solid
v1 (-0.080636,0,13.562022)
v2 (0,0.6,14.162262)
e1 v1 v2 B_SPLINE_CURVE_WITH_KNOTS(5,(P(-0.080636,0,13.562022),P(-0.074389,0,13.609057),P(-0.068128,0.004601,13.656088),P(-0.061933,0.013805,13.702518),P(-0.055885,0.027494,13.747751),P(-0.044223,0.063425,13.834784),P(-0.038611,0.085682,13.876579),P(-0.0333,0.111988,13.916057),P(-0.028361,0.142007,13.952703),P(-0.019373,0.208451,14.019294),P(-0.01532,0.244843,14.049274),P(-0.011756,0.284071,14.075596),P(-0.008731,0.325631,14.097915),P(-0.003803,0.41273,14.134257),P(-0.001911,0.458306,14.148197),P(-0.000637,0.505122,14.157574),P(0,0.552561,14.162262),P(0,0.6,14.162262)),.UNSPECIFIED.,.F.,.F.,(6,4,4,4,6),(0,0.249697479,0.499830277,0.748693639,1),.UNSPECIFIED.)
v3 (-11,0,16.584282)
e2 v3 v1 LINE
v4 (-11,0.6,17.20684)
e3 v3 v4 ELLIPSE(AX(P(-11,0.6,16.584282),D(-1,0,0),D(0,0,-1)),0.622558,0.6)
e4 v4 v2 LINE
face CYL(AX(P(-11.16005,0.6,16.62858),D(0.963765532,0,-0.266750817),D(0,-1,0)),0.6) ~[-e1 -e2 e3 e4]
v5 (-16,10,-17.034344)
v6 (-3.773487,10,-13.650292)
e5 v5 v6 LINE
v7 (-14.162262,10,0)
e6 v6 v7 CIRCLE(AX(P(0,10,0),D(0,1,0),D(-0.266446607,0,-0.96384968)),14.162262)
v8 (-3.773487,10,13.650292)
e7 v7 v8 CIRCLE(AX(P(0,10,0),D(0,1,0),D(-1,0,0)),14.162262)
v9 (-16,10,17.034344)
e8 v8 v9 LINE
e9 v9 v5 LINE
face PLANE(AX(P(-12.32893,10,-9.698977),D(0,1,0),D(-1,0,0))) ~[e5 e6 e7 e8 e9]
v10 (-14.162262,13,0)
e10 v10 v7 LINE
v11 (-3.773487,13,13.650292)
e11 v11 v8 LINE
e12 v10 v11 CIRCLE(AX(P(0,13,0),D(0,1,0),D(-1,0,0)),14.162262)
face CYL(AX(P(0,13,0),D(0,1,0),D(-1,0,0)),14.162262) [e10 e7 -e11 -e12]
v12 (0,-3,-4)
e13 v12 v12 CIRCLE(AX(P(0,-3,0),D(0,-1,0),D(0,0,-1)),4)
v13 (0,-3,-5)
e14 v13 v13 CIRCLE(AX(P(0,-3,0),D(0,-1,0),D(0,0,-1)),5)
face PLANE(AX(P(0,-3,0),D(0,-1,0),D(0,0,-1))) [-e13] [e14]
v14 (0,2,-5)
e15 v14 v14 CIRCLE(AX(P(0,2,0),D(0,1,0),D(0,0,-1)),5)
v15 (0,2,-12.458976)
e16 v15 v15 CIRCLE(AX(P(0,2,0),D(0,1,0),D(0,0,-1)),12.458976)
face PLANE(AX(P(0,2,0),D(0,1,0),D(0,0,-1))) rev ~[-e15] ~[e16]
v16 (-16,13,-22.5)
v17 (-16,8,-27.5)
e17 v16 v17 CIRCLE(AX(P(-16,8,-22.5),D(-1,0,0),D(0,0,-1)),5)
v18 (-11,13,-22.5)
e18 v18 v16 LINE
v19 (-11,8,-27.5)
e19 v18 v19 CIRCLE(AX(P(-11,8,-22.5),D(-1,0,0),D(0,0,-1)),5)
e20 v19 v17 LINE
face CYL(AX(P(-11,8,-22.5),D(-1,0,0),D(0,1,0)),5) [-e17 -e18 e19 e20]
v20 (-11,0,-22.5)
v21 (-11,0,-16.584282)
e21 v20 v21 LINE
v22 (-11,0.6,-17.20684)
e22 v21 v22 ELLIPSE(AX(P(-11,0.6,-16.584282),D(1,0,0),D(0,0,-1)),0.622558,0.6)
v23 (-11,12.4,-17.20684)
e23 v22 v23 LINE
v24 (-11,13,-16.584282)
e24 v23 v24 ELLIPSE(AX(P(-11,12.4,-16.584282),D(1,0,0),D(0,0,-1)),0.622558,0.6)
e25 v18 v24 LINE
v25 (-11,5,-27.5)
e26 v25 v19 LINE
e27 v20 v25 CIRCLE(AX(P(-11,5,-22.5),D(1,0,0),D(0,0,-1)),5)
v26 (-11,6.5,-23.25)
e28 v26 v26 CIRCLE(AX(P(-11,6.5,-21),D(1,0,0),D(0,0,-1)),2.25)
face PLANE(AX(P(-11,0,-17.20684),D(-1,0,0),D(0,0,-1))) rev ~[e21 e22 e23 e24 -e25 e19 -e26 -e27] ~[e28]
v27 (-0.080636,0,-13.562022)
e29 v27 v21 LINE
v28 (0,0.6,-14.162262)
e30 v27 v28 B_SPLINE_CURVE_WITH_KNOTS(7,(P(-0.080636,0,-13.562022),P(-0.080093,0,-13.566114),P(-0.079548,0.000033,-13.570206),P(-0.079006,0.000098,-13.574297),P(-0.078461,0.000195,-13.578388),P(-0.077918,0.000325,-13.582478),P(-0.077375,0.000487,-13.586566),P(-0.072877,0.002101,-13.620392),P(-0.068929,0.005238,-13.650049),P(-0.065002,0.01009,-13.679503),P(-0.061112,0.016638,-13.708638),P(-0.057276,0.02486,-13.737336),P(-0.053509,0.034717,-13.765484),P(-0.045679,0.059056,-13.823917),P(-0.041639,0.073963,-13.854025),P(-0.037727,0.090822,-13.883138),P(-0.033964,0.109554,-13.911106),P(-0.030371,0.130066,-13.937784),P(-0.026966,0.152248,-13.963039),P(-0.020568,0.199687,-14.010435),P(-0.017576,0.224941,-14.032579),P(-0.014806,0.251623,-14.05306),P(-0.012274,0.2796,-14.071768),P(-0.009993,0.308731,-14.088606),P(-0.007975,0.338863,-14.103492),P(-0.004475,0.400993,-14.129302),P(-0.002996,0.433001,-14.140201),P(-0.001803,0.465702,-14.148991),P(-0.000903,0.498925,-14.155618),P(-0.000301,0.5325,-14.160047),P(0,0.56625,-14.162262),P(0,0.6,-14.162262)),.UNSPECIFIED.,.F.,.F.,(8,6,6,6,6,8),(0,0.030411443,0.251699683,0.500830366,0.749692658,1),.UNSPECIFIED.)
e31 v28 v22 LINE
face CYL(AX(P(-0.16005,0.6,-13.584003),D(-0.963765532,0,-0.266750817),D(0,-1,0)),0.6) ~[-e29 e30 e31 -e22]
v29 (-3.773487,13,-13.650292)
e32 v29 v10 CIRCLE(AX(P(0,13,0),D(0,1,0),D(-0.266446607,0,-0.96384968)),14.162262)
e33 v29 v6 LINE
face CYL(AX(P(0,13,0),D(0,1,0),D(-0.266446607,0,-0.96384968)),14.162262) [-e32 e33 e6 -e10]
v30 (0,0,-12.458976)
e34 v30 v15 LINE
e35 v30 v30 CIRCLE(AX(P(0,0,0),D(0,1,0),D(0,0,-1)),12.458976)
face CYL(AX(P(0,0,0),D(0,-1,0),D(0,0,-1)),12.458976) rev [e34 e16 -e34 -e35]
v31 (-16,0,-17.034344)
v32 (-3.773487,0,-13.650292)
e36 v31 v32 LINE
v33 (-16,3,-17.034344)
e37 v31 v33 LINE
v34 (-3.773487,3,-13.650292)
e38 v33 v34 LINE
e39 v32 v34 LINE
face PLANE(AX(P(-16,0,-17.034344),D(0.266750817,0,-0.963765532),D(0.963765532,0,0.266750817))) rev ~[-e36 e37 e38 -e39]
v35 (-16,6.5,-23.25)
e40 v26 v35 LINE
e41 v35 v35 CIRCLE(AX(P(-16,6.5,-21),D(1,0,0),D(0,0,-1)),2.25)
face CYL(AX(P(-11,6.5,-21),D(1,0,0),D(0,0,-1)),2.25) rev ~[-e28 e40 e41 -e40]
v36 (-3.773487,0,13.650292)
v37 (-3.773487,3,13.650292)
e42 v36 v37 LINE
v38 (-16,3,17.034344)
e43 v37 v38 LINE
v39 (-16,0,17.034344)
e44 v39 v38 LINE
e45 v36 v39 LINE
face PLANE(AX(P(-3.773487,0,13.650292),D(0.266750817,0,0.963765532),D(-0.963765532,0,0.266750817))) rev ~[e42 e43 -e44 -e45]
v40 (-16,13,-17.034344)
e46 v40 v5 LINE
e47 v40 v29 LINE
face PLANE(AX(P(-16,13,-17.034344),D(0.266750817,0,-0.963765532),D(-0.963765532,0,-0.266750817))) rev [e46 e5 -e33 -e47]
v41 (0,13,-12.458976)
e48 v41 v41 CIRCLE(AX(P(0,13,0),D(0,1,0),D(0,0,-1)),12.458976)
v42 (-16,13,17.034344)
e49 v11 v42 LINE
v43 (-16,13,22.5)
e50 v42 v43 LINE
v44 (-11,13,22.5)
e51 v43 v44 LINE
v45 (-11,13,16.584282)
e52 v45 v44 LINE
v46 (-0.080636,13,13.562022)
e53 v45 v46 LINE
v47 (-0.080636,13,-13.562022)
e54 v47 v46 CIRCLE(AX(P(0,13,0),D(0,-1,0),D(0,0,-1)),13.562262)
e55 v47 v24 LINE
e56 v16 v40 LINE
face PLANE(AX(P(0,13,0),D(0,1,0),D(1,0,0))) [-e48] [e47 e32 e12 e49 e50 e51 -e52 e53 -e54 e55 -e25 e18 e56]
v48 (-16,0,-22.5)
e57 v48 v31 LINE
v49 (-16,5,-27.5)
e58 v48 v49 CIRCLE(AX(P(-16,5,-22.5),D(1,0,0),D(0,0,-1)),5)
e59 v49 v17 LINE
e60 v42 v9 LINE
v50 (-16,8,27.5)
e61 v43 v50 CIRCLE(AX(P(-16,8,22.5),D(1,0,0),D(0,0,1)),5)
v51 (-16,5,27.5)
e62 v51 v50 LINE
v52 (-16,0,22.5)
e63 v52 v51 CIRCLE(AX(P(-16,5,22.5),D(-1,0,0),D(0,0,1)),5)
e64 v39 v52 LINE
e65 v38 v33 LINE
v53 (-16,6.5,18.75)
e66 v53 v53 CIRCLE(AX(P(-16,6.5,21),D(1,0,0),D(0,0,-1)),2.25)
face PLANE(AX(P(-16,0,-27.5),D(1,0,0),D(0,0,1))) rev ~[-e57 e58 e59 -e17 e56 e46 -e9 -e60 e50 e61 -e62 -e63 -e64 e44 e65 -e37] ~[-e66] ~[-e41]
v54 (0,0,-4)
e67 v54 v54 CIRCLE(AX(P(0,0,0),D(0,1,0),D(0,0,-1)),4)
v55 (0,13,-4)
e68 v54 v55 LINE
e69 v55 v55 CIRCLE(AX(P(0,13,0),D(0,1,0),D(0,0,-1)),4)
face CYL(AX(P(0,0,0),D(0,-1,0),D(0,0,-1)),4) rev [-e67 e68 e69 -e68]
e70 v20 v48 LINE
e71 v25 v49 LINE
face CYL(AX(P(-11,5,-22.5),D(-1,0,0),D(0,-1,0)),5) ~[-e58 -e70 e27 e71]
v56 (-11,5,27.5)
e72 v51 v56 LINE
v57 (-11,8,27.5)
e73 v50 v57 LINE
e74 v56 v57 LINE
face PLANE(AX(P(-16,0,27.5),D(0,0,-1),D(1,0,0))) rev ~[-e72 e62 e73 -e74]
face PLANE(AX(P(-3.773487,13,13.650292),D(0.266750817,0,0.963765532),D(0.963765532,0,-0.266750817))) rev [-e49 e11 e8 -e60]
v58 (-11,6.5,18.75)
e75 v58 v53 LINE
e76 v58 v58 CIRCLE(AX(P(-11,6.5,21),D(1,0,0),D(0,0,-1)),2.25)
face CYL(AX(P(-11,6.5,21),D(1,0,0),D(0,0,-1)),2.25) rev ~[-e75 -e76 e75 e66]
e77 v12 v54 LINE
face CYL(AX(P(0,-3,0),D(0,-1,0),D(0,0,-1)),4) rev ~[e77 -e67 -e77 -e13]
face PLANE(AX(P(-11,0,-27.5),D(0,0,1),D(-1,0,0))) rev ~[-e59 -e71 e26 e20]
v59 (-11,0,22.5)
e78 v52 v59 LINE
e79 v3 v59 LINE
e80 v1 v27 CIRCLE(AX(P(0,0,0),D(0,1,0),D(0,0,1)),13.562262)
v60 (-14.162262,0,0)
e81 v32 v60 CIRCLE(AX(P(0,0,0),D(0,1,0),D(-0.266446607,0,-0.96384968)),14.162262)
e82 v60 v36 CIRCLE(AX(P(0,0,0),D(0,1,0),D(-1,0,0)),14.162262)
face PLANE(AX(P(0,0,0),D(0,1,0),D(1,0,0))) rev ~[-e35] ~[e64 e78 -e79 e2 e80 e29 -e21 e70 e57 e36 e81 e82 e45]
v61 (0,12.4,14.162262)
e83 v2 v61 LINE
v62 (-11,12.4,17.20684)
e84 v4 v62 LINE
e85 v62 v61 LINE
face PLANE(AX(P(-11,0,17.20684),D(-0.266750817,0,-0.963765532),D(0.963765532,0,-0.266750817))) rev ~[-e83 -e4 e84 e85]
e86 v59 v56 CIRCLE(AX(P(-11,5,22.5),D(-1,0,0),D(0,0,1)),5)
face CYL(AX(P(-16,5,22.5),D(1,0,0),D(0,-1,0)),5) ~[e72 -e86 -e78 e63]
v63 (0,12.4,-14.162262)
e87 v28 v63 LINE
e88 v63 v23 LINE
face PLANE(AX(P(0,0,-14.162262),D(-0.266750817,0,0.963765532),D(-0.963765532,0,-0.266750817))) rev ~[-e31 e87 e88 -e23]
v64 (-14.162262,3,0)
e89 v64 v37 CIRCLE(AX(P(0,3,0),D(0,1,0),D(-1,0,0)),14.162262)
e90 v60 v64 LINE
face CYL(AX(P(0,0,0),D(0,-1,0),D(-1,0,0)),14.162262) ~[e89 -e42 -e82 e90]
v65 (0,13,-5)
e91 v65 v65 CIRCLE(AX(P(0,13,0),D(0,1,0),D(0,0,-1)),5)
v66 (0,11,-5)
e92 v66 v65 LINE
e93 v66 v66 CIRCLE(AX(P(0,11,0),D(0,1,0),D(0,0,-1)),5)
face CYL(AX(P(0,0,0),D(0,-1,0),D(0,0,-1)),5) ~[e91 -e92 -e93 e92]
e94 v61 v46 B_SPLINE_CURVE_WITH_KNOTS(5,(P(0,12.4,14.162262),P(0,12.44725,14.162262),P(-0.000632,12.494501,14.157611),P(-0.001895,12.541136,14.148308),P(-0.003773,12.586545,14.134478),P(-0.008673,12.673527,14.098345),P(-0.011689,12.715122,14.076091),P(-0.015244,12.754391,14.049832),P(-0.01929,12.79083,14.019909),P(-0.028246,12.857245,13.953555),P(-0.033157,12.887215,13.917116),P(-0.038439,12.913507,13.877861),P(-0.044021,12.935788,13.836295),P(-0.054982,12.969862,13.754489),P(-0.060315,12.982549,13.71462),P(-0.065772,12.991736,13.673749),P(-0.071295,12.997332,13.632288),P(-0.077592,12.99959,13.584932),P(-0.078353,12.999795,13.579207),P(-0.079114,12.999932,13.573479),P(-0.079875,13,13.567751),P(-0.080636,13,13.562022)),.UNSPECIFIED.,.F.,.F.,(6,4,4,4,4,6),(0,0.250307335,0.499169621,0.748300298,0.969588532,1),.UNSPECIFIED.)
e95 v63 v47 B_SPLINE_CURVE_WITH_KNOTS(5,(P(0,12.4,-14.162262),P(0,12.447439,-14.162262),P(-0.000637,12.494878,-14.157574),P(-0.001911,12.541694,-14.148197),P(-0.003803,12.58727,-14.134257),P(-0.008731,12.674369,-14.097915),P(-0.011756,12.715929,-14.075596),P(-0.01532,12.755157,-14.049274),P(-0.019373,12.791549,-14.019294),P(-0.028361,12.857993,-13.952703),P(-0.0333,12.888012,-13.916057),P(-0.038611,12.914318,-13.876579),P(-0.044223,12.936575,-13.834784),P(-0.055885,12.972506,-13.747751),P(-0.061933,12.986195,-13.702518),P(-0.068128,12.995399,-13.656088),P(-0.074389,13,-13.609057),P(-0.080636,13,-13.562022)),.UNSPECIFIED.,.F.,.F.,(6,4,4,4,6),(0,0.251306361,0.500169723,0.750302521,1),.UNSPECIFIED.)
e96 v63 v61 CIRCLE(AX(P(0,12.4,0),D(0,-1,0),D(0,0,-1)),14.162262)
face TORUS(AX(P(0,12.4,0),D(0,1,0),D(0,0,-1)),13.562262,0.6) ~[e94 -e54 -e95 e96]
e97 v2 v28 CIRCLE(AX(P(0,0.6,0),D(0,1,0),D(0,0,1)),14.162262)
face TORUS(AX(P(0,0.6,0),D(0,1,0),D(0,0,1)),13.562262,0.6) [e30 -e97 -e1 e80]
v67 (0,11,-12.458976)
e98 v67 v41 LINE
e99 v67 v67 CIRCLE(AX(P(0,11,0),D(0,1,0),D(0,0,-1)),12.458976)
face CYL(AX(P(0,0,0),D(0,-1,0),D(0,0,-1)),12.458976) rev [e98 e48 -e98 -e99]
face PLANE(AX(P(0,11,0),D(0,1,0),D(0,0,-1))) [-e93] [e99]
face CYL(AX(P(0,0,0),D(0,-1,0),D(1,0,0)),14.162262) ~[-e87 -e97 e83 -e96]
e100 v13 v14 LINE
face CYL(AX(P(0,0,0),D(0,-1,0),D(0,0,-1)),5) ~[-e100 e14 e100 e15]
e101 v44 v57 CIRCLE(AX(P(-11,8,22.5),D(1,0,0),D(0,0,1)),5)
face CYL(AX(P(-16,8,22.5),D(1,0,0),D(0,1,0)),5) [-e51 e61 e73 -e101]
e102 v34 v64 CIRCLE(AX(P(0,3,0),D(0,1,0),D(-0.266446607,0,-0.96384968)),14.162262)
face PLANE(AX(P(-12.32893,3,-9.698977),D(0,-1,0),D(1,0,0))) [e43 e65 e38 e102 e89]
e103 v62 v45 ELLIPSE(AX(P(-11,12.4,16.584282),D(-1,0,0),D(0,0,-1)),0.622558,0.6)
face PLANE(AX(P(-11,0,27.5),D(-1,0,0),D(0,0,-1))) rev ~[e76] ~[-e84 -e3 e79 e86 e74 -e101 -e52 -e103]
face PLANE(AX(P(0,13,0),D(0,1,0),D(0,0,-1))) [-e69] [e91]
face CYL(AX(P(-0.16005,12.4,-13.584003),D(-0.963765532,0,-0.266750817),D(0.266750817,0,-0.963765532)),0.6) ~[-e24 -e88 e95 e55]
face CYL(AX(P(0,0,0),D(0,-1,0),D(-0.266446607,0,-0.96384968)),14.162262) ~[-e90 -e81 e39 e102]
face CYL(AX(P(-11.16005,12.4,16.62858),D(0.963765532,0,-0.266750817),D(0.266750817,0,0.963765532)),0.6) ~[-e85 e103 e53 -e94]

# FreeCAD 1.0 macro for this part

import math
import FreeCAD as App
import Part
import Sketcher

V = App.Vector
Q = App.Units.Quantity


def edges_at(feature, points):
    """Names of the edges that pass closest to the given points."""
    edges = feature.Shape.Edges
    near = lambda p: min(range(len(edges)), key=lambda i: edges[i].distToShape(Part.Vertex(*p))[0])
    return sorted({f"Edge{near(p) + 1}" for p in points})

doc = App.newDocument("Part")
body = doc.addObject("PartDesign::Body", "Body")
body.AllowCompound = True

# Sketch on XZ plane
sketch1 = body.newObject("Sketcher::SketchObject", "Sketch")
sketch1.AttachmentSupport = (doc.getObject("XZ_Plane"), [""])
sketch1.MapMode = "FlatFace"
sketch1.addGeometry([
    Part.LineSegment(V(-11, -27.5, 0), V(-16, -27.5, 0)),  # 0
    Part.LineSegment(V(-16, -27.5, 0), V(-16, 27.5, 0)),  # 1
    Part.LineSegment(V(-16, 27.5, 0), V(-11, 27.5, 0)),  # 2
    Part.LineSegment(V(-11, 27.5, 0), V(-11, 17.2, 0)),  # 3
    Part.LineSegment(V(-11, 17.2, 0), V(0, 14.2, 0)),  # 4
    Part.ArcOfCircle(Part.Circle(V(0, 0, 0), V(0, 0, 1), 14.2), math.radians(-90), math.radians(90)),  # 5
    Part.LineSegment(V(0, -14.2, 0), V(-11, -17.2, 0)),  # 6
    Part.LineSegment(V(-11, -17.2, 0), V(-11, -27.5, 0)),  # 7
    Part.Circle(V(0, 0, 0), V(0, 0, 1), 12.5),  # 8
    Part.Circle(V(0, 0, 0), V(0, 0, 1), 5),  # 9
    Part.Circle(V(0, 0, 0), V(0, 0, 1), 4),  # 10
], False)
sketch1.addConstraint([
    Sketcher.Constraint("Coincident", 0, 2, 1, 1),
    Sketcher.Constraint("Coincident", 1, 2, 2, 1),
    Sketcher.Constraint("Coincident", 2, 2, 3, 1),
    Sketcher.Constraint("Coincident", 3, 2, 4, 1),
    Sketcher.Constraint("Coincident", 4, 2, 5, 2),
    Sketcher.Constraint("Coincident", 5, 1, 6, 1),
    Sketcher.Constraint("Coincident", 6, 2, 7, 1),
    Sketcher.Constraint("Coincident", 7, 2, 0, 1),
    Sketcher.Constraint("Horizontal", 0),
    Sketcher.Constraint("Vertical", 1),
    Sketcher.Constraint("Horizontal", 2),
    Sketcher.Constraint("Vertical", 3),
    Sketcher.Constraint("Vertical", 7),
    Sketcher.Constraint("Coincident", 5, 3, -1, 1),
    Sketcher.Constraint("Coincident", 8, 3, -1, 1),
    Sketcher.Constraint("Coincident", 9, 3, -1, 1),
    Sketcher.Constraint("Coincident", 10, 3, -1, 1),
    Sketcher.Constraint("Symmetric", 3, 2, 6, 2, -1),
    Sketcher.Constraint("PointOnObject", 4, 2, -2),
    Sketcher.Constraint("PointOnObject", 5, 1, -2),
    Sketcher.Constraint("Equal", 3, 7),
    Sketcher.Constraint("Diameter", 9, Q("10 mm")),
    Sketcher.Constraint("Diameter", 10, Q("8 mm")),
    Sketcher.Constraint("DistanceX", 0, 2, 0, 1, Q("5 mm")),
    Sketcher.Constraint("DistanceY", 1, 1, 1, 2, Q("55 mm")),
    Sketcher.Constraint("DistanceX", 0, 2, -1, 1, Q("16 mm")),
    Sketcher.Constraint("Diameter", 8, Q("24.917953 mm")),
    Sketcher.Constraint("Radius", 5, Q("14.162262 mm")),
    Sketcher.Constraint("DistanceY", 3, 2, 3, 1, Q("10.29316 mm")),
])
pad1 = body.newObject("PartDesign::Pad", "Pad")
pad1.Profile = sketch1
pad1.Length = 13
pad1.Reversed = True

# Sketch on XZ plane
sketch2 = body.newObject("Sketcher::SketchObject", "Sketch001")
sketch2.AttachmentSupport = (doc.getObject("XZ_Plane"), [""])
sketch2.MapMode = "FlatFace"
sketch2.AttachmentOffset = App.Placement(V(0, 0, -2), App.Rotation())
sketch2.addGeometry([
    Part.Circle(V(0, 0, 0), V(0, 0, 1), 12),
    Part.Circle(V(0, 0, 0), V(0, 0, 1), 5),
], False)
sketch2.addConstraint([
    Sketcher.Constraint("Coincident", 0, 3, -1, 1),
    Sketcher.Constraint("Coincident", 1, 3, -1, 1),
    Sketcher.Constraint("Diameter", 1, Q("10 mm")),
    Sketcher.Constraint("Diameter", 0, Q("24.917953 mm")),
])
pad2 = body.newObject("PartDesign::Pad", "Pad001")
pad2.Profile = sketch2
pad2.Length = 9
pad2.Reversed = True

# Sketch on YZ plane
sketch3 = body.newObject("Sketcher::SketchObject", "Sketch002")
sketch3.AttachmentSupport = (doc.getObject("YZ_Plane"), [""])
sketch3.MapMode = "FlatFace"
sketch3.AttachmentOffset = App.Placement(V(0, 0, -11), App.Rotation())
sketch3.addGeometry([
    Part.Circle(V(6.5, -21, 0), V(0, 0, 1), 2.2),
    Part.Circle(V(6.5, 21, 0), V(0, 0, 1), 2.2),
], False)
sketch3.addConstraint([
    Sketcher.Constraint("Equal", 0, 1),
    Sketcher.Constraint("Symmetric", 0, 3, 1, 3, -1),
    Sketcher.Constraint("Diameter", 0, Q("4.5 mm")),
    Sketcher.Constraint("DistanceY", 0, 3, -1, 1, Q("21 mm")),
    Sketcher.Constraint("DistanceX", -1, 1, 0, 3, Q("6.5 mm")),
])
pocket1 = body.newObject("PartDesign::Pocket", "Pocket")
pocket1.Profile = sketch3
pocket1.Length = 9
doc.recompute()

fillet = body.newObject("PartDesign::Fillet", "Fillet")
fillet.Base = (pocket1, edges_at(pocket1, [
    (-13.5, 0, 27.5),
    (-13.5, 0, -27.5),
    (-13.5, 13, -27.5),
    (-13.5, 13, 27.5),
]))
fillet.Radius = 5

# Sketch on XZ plane
sketch4 = body.newObject("Sketcher::SketchObject", "Sketch003")
sketch4.AttachmentSupport = (doc.getObject("XZ_Plane"), [""])
sketch4.MapMode = "FlatFace"
sketch4.AttachmentOffset = App.Placement(V(0, 0, 3), App.Rotation())
sketch4.addGeometry([
    Part.Circle(V(0, 0, 0), V(0, 0, 1), 5),
    Part.Circle(V(0, 0, 0), V(0, 0, 1), 4),
], False)
sketch4.addConstraint([
    Sketcher.Constraint("Coincident", 0, 3, -1, 1),
    Sketcher.Constraint("Coincident", 1, 3, -1, 1),
    Sketcher.Constraint("Diameter", 0, Q("10 mm")),
    Sketcher.Constraint("Diameter", 1, Q("8 mm")),
])
pad3 = body.newObject("PartDesign::Pad", "Pad002")
pad3.Profile = sketch4
pad3.Length = 3
pad3.Reversed = True

# Sketch on XZ plane
sketch5 = body.newObject("Sketcher::SketchObject", "Sketch004")
sketch5.AttachmentSupport = (doc.getObject("XZ_Plane"), [""])
sketch5.MapMode = "FlatFace"
sketch5.addGeometry([
    Part.LineSegment(V(-16, -17, 0), V(-4, -14, 0)),  # 0
    Part.ArcOfCircle(Part.Circle(V(0, 0, 0), V(0, 0, 1), 14), math.radians(-180), math.radians(-105)),  # 1
    Part.ArcOfCircle(Part.Circle(V(0, 0, 0), V(0, 0, 1), 14), math.radians(105), math.radians(180)),  # 2
    Part.LineSegment(V(-4, 14, 0), V(-16, 17, 0)),  # 3
    Part.LineSegment(V(-16, 17, 0), V(-16, -17, 0)),  # 4
], False)
sketch5.addConstraint([
    Sketcher.Constraint("Coincident", 0, 2, 1, 2),
    Sketcher.Constraint("Tangent", 1, 1, 2, 2),
    Sketcher.Constraint("Coincident", 2, 1, 3, 1),
    Sketcher.Constraint("Coincident", 3, 2, 4, 1),
    Sketcher.Constraint("Coincident", 4, 2, 0, 1),
    Sketcher.Constraint("Vertical", 4),
    Sketcher.Constraint("Coincident", 1, 3, -1, 1),
    Sketcher.Constraint("Equal", 1, 2),
    Sketcher.Constraint("PointOnObject", 1, 1, -1),
    Sketcher.Constraint("Vertical", 0, 2, 2, 1),
    Sketcher.Constraint("Equal", 0, 3),
    Sketcher.Constraint("DistanceX", 3, 2, -1, 1, Q("16 mm")),
    Sketcher.Constraint("Radius", 1, Q("14.162262 mm")),
    Sketcher.Constraint("Distance", 0, Q("12.686191 mm")),
    Sketcher.Constraint("DistanceY", 4, 2, 4, 1, Q("34.068687 mm")),
])
pocket2 = body.newObject("PartDesign::Pocket", "Pocket001")
pocket2.Profile = sketch5
pocket2.Length = 3
doc.recompute()

datumplane = body.newObject("PartDesign::Plane", "DatumPlane")
datumplane.AttachmentSupport = (doc.getObject("XZ_Plane"), [""])
datumplane.MapMode = "FlatFace"
datumplane.AttachmentOffset = App.Placement(V(0, 0, -6.5), App.Rotation())
mirrored = body.newObject("PartDesign::Mirrored", "Mirrored")
mirrored.Originals = [pocket2]
mirrored.MirrorPlane = (datumplane, [""])
body.Tip = mirrored
doc.recompute()

fillet2 = body.newObject("PartDesign::Fillet", "Fillet001")
fillet2.Base = (mirrored, edges_at(mirrored, [
    (-5.5, 0, -15.685),
    (-5.5, 13, -15.685),
    (14.162, 0, 0),
    (-5.5, 0, 15.685),
    (-5.5, 13, 15.685),
    (14.162, 13, 0),
]))
fillet2.Radius = 0.6

doc.recompute()
